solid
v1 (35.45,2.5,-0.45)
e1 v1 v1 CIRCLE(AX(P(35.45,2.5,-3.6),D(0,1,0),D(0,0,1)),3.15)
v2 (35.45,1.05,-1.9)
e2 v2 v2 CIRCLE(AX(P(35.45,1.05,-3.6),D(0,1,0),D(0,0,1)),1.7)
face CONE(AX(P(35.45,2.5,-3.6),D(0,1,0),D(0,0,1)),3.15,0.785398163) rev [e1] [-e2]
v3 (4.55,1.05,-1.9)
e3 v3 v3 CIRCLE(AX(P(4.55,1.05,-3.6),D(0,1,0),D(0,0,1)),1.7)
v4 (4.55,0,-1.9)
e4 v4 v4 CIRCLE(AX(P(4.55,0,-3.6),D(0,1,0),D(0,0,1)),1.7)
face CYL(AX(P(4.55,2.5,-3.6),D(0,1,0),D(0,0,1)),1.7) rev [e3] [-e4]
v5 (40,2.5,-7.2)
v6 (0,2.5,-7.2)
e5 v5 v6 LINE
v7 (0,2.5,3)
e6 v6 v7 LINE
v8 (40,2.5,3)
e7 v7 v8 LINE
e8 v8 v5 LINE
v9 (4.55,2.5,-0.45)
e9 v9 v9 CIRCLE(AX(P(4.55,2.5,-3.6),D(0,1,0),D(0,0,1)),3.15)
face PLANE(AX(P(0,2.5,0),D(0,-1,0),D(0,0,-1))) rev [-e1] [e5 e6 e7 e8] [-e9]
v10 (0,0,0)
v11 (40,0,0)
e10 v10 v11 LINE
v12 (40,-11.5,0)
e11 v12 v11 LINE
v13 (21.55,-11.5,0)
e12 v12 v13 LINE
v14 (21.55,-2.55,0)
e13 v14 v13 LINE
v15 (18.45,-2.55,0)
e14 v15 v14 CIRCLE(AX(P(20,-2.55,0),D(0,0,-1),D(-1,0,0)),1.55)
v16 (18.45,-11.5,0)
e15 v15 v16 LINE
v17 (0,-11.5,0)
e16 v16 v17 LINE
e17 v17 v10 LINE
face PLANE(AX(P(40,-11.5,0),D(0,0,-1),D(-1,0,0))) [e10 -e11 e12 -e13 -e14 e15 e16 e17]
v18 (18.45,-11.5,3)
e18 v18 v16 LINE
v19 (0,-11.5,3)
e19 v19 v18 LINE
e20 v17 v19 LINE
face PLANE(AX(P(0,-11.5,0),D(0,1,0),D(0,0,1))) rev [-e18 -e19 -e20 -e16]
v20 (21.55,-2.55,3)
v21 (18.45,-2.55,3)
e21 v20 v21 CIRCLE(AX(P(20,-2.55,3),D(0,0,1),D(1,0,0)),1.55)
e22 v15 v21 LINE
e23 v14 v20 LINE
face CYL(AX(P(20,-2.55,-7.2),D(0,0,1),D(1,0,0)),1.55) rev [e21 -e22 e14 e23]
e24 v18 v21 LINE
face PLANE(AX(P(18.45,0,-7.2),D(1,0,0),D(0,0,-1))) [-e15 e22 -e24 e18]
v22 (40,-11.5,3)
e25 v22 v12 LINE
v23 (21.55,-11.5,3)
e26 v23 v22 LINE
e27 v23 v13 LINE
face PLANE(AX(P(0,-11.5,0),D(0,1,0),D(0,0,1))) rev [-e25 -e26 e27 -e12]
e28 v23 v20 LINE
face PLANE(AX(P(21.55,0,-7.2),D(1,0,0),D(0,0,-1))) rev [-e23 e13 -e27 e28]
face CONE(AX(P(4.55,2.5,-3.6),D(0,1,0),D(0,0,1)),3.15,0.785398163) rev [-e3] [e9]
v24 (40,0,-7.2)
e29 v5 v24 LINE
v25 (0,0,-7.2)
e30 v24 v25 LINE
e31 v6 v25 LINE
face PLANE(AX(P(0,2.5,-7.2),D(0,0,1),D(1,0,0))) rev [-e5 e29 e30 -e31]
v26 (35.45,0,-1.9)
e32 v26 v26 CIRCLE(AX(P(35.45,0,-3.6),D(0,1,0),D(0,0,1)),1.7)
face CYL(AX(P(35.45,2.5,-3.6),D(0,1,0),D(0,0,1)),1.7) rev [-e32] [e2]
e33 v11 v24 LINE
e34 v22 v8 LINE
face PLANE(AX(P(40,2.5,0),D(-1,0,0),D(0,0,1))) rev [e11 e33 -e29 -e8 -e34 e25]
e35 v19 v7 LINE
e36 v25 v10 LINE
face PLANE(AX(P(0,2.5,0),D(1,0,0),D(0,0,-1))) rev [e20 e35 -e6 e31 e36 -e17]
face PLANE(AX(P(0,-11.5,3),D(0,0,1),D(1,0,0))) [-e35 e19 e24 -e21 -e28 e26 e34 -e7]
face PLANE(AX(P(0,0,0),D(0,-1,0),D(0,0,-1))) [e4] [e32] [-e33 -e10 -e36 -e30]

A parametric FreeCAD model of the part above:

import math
import FreeCAD as App
import Part
import Sketcher

V = App.Vector
Q = App.Units.Quantity

doc = App.newDocument("Part")
body = doc.addObject("PartDesign::Body", "Body")

# Sketch on XZ plane
sketch1 = body.newObject("Sketcher::SketchObject", "Sketch")
sketch1.AttachmentSupport = (doc.getObject("XZ_Plane"), [""])
sketch1.MapMode = "FlatFace"
sketch1.addGeometry(Part.LineSegment(V(0, -7, 0), V(0, 0, 0)), False)
sketch1.addGeometry(Part.LineSegment(V(0, 0, 0), V(40, 0, 0)), False)
sketch1.addGeometry(Part.LineSegment(V(40, 0, 0), V(40, -7, 0)), False)
sketch1.addGeometry(Part.LineSegment(V(40, -7, 0), V(0, -7, 0)), False)
sketch1.addConstraint(Sketcher.Constraint("Coincident", 0, 2, 1, 1))
sketch1.addConstraint(Sketcher.Constraint("Coincident", 1, 2, 2, 1))
sketch1.addConstraint(Sketcher.Constraint("Coincident", 2, 2, 3, 1))
sketch1.addConstraint(Sketcher.Constraint("Coincident", 3, 2, 0, 1))
sketch1.addConstraint(Sketcher.Constraint("Vertical", 0))
sketch1.addConstraint(Sketcher.Constraint("Horizontal", 1))
sketch1.addConstraint(Sketcher.Constraint("Vertical", 2))
sketch1.addConstraint(Sketcher.Constraint("Horizontal", 3))
sketch1.addConstraint(Sketcher.Constraint("Coincident", 0, 2, -1, 1))
sketch1.addConstraint(Sketcher.Constraint("DistanceX", 1, 1, 1, 2, 40.0))
sketch1.addConstraint(Sketcher.Constraint("DistanceY", 0, 1, 0, 2, 7.2))
pad1 = body.newObject("PartDesign::Pad", "Pad")
pad1.Profile = sketch1
pad1.Length = 2.5
pad1.Reversed = True

# Sketch on YZ plane
sketch2 = body.newObject("Sketcher::SketchObject", "Sketch001")
sketch2.AttachmentSupport = (doc.getObject("YZ_Plane"), [""])
sketch2.MapMode = "FlatFace"
sketch2.AttachmentOffset = App.Placement(V(0, 0, 35.45), App.Rotation())
sketch2.addGeometry(Part.LineSegment(V(0, -3.6, 0), V(2.5, -3.6, 0)), False)
sketch2.addGeometry(Part.LineSegment(V(2.5, -3.6, 0), V(2.5, -0.5, 0)), False)
sketch2.addGeometry(Part.LineSegment(V(2.5, -0.5, 0), V(1.1, -1.9, 0)), False)
sketch2.addGeometry(Part.LineSegment(V(1.1, -1.9, 0), V(0, -1.9, 0)), False)
sketch2.addGeometry(Part.LineSegment(V(0, -1.9, 0), V(0, -3.6, 0)), False)
sketch2.addGeometry(Part.LineSegment(V(2.5, -3.6, 0), V(0, -3.6, 0)), True)  # axis
sketch2.addConstraint(Sketcher.Constraint("Coincident", 0, 2, 1, 1))
sketch2.addConstraint(Sketcher.Constraint("Coincident", 1, 2, 2, 1))
sketch2.addConstraint(Sketcher.Constraint("Coincident", 2, 2, 3, 1))
sketch2.addConstraint(Sketcher.Constraint("Coincident", 3, 2, 4, 1))
sketch2.addConstraint(Sketcher.Constraint("Coincident", 4, 2, 0, 1))
sketch2.addConstraint(Sketcher.Constraint("Horizontal", 0))
sketch2.addConstraint(Sketcher.Constraint("Vertical", 1))
sketch2.addConstraint(Sketcher.Constraint("Horizontal", 3))
sketch2.addConstraint(Sketcher.Constraint("Vertical", 4))
sketch2.addConstraint(Sketcher.Constraint("Horizontal", 5))
sketch2.addConstraint(Sketcher.Constraint("Coincident", 5, 1, 0, 2))
sketch2.addConstraint(Sketcher.Constraint("PointOnObject", 3, 2, -2))
sketch2.addConstraint(Sketcher.Constraint("PointOnObject", 5, 2, -2))
sketch2.addConstraint(Sketcher.Constraint("Angle", 2, Q("-135 deg")))
sketch2.addConstraint(Sketcher.Constraint("DistanceX", 0, 1, 0, 2, 2.5))
sketch2.addConstraint(Sketcher.Constraint("DistanceY", 4, 2, 4, 1, 1.7))
sketch2.addConstraint(Sketcher.Constraint("DistanceX", 3, 2, 3, 1, 1.05))
sketch2.addConstraint(Sketcher.Constraint("DistanceY", 0, 2, -1, 1, 3.6))
groove = body.newObject("PartDesign::Groove", "Groove")
groove.Profile = sketch2
groove.ReferenceAxis = (sketch2, ["Axis0"])
groove.Angle = 360
doc.recompute()

linearpattern = body.newObject("PartDesign::LinearPattern", "LinearPattern")
linearpattern.Originals = [groove]
linearpattern.Direction = (doc.getObject("X_Axis"), [""])
linearpattern.Mode = "offset"
linearpattern.Offset = 30.9
linearpattern.Occurrences = 2
linearpattern.Reversed = True
body.Tip = linearpattern

# Sketch on XZ plane
sketch3 = body.newObject("Sketcher::SketchObject", "Sketch002")
sketch3.AttachmentSupport = (doc.getObject("XZ_Plane"), [""])
sketch3.MapMode = "FlatFace"
sketch3.AttachmentOffset = App.Placement(V(0, 0, -2.5), App.Rotation())
sketch3.addGeometry(Part.LineSegment(V(0, 0, 0), V(0, 3, 0)), False)
sketch3.addGeometry(Part.LineSegment(V(0, 3, 0), V(40, 3, 0)), False)
sketch3.addGeometry(Part.LineSegment(V(40, 3, 0), V(40, 0, 0)), False)
sketch3.addGeometry(Part.LineSegment(V(40, 0, 0), V(0, 0, 0)), False)
sketch3.addConstraint(Sketcher.Constraint("Coincident", 0, 2, 1, 1))
sketch3.addConstraint(Sketcher.Constraint("Coincident", 1, 2, 2, 1))
sketch3.addConstraint(Sketcher.Constraint("Coincident", 2, 2, 3, 1))
sketch3.addConstraint(Sketcher.Constraint("Coincident", 3, 2, 0, 1))
sketch3.addConstraint(Sketcher.Constraint("Vertical", 0))
sketch3.addConstraint(Sketcher.Constraint("Horizontal", 1))
sketch3.addConstraint(Sketcher.Constraint("Vertical", 2))
sketch3.addConstraint(Sketcher.Constraint("Horizontal", 3))
sketch3.addConstraint(Sketcher.Constraint("Coincident", 3, 2, -1, 1))
sketch3.addConstraint(Sketcher.Constraint("DistanceX", 1, 1, 1, 2, 40.0))
sketch3.addConstraint(Sketcher.Constraint("DistanceY", 0, 1, 0, 2, 3.0))
pad2 = body.newObject("PartDesign::Pad", "Pad001")
pad2.Profile = sketch3
pad2.Length = 14

# Sketch on XY plane
sketch4 = body.newObject("Sketcher::SketchObject", "Sketch003")
sketch4.AttachmentSupport = (doc.getObject("XY_Plane"), [""])
sketch4.MapMode = "FlatFace"
sketch4.AttachmentOffset = App.Placement(V(0, 0, 3), App.Rotation())
sketch4.addGeometry(Part.LineSegment(V(18.4, -2.5, 0), V(18.4, -11.5, 0)), False)
sketch4.addGeometry(Part.ArcOfCircle(Part.Circle(V(20, -11.5, 0), V(0, 0, 1), 1.6), math.radians(180), math.radians(360)), False)
sketch4.addGeometry(Part.LineSegment(V(21.6, -11.5, 0), V(21.6, -2.5, 0)), False)
sketch4.addGeometry(Part.ArcOfCircle(Part.Circle(V(20, -2.5, 0), V(0, 0, 1), 1.6), math.radians(0), math.radians(180)), False)
sketch4.addConstraint(Sketcher.Constraint("Tangent", 0, 2, 1, 1))
sketch4.addConstraint(Sketcher.Constraint("Tangent", 1, 2, 2, 1))
sketch4.addConstraint(Sketcher.Constraint("Tangent", 2, 2, 3, 1))
sketch4.addConstraint(Sketcher.Constraint("Tangent", 3, 2, 0, 1))
sketch4.addConstraint(Sketcher.Constraint("Vertical", 0))
sketch4.addConstraint(Sketcher.Constraint("Vertical", 2))
sketch4.addConstraint(Sketcher.Constraint("Radius", 1, 1.55))
sketch4.addConstraint(Sketcher.Constraint("DistanceX", -1, 1, 1, 3, 20.0))
sketch4.addConstraint(Sketcher.Constraint("DistanceY", 0, 2, 0, 1, 8.95))
sketch4.addConstraint(Sketcher.Constraint("DistanceY", 1, 3, -1, 1, 11.5))
pocket1 = body.newObject("PartDesign::Pocket", "Pocket")
pocket1.Profile = sketch4
pocket1.Type = "ThroughAll"

doc.recompute()
